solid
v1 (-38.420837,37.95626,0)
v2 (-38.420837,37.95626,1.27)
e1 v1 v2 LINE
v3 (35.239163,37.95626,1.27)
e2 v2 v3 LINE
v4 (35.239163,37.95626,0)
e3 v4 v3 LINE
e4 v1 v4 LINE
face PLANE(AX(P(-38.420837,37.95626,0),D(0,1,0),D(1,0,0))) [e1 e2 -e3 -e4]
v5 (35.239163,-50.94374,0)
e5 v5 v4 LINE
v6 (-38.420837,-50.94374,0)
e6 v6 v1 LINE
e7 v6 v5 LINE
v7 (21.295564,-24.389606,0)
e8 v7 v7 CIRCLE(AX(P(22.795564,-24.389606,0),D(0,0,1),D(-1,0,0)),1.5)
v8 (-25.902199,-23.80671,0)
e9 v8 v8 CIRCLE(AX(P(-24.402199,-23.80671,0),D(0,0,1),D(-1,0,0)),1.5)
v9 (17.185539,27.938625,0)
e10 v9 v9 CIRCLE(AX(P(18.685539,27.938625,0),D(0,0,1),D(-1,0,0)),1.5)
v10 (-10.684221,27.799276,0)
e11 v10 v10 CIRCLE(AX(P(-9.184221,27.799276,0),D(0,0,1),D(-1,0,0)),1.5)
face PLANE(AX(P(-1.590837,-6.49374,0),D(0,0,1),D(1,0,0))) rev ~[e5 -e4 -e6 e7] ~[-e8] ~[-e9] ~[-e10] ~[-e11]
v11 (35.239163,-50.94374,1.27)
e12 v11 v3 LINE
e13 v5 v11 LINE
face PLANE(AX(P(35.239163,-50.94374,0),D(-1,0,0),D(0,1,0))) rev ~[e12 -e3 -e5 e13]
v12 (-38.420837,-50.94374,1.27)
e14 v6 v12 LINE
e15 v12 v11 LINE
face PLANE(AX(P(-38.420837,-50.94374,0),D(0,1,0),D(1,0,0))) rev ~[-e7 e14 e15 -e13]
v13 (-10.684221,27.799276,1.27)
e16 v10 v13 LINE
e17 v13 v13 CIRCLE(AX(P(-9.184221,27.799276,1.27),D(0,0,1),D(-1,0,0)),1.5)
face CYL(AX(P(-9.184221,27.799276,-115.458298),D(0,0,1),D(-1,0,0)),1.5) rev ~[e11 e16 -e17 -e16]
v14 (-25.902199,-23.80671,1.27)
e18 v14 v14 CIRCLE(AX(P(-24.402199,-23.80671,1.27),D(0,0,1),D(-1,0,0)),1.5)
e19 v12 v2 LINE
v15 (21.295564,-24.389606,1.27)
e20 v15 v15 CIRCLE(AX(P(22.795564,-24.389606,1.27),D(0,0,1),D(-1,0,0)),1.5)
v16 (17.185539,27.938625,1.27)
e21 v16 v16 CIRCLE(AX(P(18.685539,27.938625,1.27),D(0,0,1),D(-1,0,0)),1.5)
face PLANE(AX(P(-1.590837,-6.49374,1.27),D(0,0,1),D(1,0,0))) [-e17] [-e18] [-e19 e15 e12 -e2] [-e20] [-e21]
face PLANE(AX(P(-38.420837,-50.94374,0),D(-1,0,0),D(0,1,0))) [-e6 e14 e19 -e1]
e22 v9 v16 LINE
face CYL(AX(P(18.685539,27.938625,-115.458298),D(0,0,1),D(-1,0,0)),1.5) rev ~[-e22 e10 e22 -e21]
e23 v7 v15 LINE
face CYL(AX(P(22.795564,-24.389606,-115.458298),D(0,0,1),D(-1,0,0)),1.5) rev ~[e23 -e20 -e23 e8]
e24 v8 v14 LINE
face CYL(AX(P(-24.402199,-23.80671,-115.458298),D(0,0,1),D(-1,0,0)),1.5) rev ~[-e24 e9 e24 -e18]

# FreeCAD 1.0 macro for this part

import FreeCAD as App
import Part
import Sketcher
Q = App.Units.Quantity

doc = App.newDocument("Part")
body = doc.addObject("PartDesign::Body", "Body")

# Sketch on XY plane
sketch1 = doc.addObject("Sketcher::SketchObject", "Sketch")
body.addObject(sketch1)
sketch1.AttachmentSupport = (doc.XY_Plane, [""])
sketch1.MapMode = "FlatFace"
sketch1.addGeometry([
    Part.LineSegment(App.Vector(-38, 38, 0), App.Vector(-38, -51, 0)),
    Part.LineSegment(App.Vector(-38, -51, 0), App.Vector(35, -51, 0)),
    Part.LineSegment(App.Vector(35, -51, 0), App.Vector(35, 38, 0)),
    Part.LineSegment(App.Vector(35, 38, 0), App.Vector(-38, 38, 0)),
], False)
sketch1.addConstraint([
    Sketcher.Constraint("Coincident", 0, 2, 1, 1),
    Sketcher.Constraint("Coincident", 1, 2, 2, 1),
    Sketcher.Constraint("Coincident", 2, 2, 3, 1),
    Sketcher.Constraint("Coincident", 3, 2, 0, 1),
    Sketcher.Constraint("Vertical", 0),
    Sketcher.Constraint("Horizontal", 1),
    Sketcher.Constraint("Vertical", 2),
    Sketcher.Constraint("Horizontal", 3),
    Sketcher.Constraint("DistanceX", 1, 1, 1, 2, Q("2.9 in")),
    Sketcher.Constraint("DistanceY", 0, 2, 0, 1, Q("3.5 in")),
    Sketcher.Constraint("DistanceY", 0, 2, -1, 1, Q("50.94374 mm")),
    Sketcher.Constraint("DistanceX", 0, 2, -1, 1, Q("38.420837 mm")),
])
pad1 = doc.addObject("PartDesign::Pad", "Pad")
body.addObject(pad1)
pad1.Profile = sketch1
pad1.Length = Q("0.05 in")

# Sketch on XY plane
sketch2 = doc.addObject("Sketcher::SketchObject", "Sketch001")
body.addObject(sketch2)
sketch2.AttachmentSupport = (doc.XY_Plane, [""])
sketch2.MapMode = "FlatFace"
sketch2.addGeometry([
    Part.Circle(App.Vector(-9.2, 27.8, 0), App.Vector(0, 0, 1), 1.5),
    Part.Circle(App.Vector(18.7, 27.9, 0), App.Vector(0, 0, 1), 1.5),
    Part.Circle(App.Vector(22.8, -24.4, 0), App.Vector(0, 0, 1), 1.5),
    Part.Circle(App.Vector(-24.4, -23.8, 0), App.Vector(0, 0, 1), 1.5),
], False)
sketch2.addConstraint([
    Sketcher.Constraint("Equal", 0, 1),
    Sketcher.Constraint("Equal", 1, 2),
    Sketcher.Constraint("Equal", 2, 3),
    Sketcher.Constraint("Diameter", 0, Q("3 mm")),
    Sketcher.Constraint("DistanceX", 3, 3, -1, 1, Q("24.402199 mm")),
    Sketcher.Constraint("DistanceX", 0, 3, -1, 1, Q("9.184221 mm")),
    Sketcher.Constraint("DistanceX", -1, 1, 1, 3, Q("18.685539 mm")),
    Sketcher.Constraint("DistanceY", 3, 3, -1, 1, Q("23.80671 mm")),
    Sketcher.Constraint("DistanceY", 0, 3, 1, 3, Q("0.139349 mm")),
    Sketcher.Constraint("DistanceY", 2, 3, 1, 3, Q("52.328231 mm")),
    Sketcher.Constraint("DistanceY", -1, 1, 0, 3, Q("27.799276 mm")),
    Sketcher.Constraint("DistanceX", -1, 1, 2, 3, Q("22.795564 mm")),
])
doc.recompute()
hole = doc.addObject("PartDesign::Hole", "Hole")
body.addObject(hole)
hole.Profile = sketch2
hole.ThreadType = "None"
hole.Diameter = 3
hole.DepthType = "ThroughAll"
hole.Reversed = True

doc.recompute()
